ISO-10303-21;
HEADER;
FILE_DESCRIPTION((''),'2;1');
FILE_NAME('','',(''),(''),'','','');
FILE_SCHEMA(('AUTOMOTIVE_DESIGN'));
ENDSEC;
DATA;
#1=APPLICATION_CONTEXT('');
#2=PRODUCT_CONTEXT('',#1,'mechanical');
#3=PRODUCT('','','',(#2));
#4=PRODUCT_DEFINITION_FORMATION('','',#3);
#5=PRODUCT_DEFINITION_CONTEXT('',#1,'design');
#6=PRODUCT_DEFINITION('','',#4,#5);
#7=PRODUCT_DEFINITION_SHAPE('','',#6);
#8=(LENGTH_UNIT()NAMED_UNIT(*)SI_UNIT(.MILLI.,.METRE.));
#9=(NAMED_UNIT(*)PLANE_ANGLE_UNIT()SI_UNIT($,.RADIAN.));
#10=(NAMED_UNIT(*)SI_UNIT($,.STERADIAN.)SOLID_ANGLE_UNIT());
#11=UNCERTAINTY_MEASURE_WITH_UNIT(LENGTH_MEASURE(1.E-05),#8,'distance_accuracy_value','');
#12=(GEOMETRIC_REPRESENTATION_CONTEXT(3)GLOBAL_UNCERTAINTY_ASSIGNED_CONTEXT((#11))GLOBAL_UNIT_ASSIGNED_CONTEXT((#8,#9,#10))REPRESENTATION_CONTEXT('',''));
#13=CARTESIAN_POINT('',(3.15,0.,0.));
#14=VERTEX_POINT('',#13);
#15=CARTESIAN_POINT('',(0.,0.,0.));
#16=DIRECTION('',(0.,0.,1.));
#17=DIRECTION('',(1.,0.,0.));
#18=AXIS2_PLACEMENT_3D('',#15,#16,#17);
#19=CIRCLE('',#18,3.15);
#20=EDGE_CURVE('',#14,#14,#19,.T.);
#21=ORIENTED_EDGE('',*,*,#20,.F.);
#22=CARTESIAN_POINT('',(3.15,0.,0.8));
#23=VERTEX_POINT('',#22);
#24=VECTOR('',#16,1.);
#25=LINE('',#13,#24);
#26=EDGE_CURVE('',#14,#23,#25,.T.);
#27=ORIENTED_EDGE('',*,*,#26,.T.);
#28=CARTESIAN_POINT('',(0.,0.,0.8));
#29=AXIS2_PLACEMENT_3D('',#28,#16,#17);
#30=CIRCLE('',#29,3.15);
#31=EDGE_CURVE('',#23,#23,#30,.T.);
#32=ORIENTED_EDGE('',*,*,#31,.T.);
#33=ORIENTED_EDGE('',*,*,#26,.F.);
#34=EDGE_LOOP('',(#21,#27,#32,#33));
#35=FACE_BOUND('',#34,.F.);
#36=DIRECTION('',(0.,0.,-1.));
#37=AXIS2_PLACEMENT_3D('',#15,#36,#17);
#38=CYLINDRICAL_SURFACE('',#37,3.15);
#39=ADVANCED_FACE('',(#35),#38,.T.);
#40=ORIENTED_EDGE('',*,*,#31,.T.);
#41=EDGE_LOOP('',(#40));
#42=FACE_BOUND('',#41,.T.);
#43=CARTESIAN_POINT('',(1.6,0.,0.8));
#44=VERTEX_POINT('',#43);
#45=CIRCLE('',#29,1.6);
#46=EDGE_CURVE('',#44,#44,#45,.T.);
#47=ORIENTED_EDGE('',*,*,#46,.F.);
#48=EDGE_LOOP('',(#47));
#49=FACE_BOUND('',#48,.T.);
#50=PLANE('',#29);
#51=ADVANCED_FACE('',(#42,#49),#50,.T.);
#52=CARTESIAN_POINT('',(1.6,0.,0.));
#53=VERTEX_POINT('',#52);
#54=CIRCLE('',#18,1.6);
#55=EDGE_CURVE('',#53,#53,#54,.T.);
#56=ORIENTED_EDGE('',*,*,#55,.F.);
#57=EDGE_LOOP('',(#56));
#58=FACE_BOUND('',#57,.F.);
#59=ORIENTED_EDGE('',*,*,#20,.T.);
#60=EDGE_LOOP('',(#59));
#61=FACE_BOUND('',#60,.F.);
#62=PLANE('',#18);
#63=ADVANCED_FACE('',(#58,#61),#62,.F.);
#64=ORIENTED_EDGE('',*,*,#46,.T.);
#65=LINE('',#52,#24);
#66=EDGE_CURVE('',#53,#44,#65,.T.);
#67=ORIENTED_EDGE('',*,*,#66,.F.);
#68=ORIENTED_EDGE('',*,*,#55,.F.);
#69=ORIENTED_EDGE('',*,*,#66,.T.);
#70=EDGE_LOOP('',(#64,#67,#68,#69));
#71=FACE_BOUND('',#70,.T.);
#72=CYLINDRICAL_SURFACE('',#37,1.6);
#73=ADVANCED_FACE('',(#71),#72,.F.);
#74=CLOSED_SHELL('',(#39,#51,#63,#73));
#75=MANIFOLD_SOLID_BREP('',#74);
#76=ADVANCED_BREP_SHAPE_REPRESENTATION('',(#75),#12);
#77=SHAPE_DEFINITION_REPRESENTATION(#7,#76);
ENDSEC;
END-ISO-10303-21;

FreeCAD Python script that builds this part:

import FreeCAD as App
import Part
import Sketcher

V = App.Vector

doc = App.newDocument("Part")
body = doc.addObject("PartDesign::Body", "Body")

# Sketch on XY plane
sketch1 = body.newObject("Sketcher::SketchObject", "Sketch")
sketch1.AttachmentSupport = (doc.getObject("XY_Plane"), [""])
sketch1.MapMode = "FlatFace"
sketch1.addGeometry([
    Part.Circle(V(0, 0, 0), V(0, 0, 1), 3.15),
    Part.Circle(V(0, 0, 0), V(0, 0, 1), 1.6),
], False)
sketch1.addConstraint([
    Sketcher.Constraint("Coincident", 0, 3, -1, 1),
    Sketcher.Constraint("Coincident", 1, 3, -1, 1),
    Sketcher.Constraint("Diameter", 0, 6.3),
    Sketcher.Constraint("Diameter", 1, 3.2),
])
pad1 = body.newObject("PartDesign::Pad", "Pad")
pad1.Profile = sketch1
pad1.Length = 0.8

doc.recompute()
